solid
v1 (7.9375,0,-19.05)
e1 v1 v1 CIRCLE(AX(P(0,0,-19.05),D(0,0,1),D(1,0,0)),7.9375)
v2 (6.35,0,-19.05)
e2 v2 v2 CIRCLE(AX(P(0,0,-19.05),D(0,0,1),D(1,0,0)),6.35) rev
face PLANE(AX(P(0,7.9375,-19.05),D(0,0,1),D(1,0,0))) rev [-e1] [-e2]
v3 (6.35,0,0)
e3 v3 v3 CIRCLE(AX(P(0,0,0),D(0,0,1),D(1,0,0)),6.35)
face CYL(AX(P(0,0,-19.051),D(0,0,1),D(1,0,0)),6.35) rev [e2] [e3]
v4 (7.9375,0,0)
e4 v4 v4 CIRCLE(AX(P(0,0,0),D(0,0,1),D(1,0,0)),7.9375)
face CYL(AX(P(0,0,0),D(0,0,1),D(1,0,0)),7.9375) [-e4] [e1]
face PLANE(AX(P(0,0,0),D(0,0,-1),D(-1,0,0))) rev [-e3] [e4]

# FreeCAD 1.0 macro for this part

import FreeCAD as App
import Part
import Sketcher

V = App.Vector
Q = App.Units.Quantity


def add_polygon(sketch, points):
    """Adds a closed chain of lines whose ends are joined by coincident constraints."""
    first, n = sketch.GeometryCount, len(points)
    for a, b in zip(points, points[1:] + points[:1]):
        sketch.addGeometry(Part.LineSegment(App.Vector(*a, 0), App.Vector(*b, 0)), False)
    for i in range(n):
        sketch.addConstraint(Sketcher.Constraint("Coincident", first + i, 2, first + (i + 1) % n, 1))

doc = App.newDocument("Part")
body = doc.addObject("PartDesign::Body", "Body")

# Sketch on YZ plane
sketch1 = doc.addObject("Sketcher::SketchObject", "Sketch")
body.addObject(sketch1)
sketch1.AttachmentSupport = (doc.YZ_Plane, [""])
sketch1.MapMode = "FlatFace"
add_polygon(sketch1, [(8, 0), (0, 0), (0, -19), (8, -19)])  # lines 0-3
sketch1.addConstraint(Sketcher.Constraint("Horizontal", 0))
sketch1.addConstraint(Sketcher.Constraint("Vertical", 1))
sketch1.addConstraint(Sketcher.Constraint("Horizontal", 2))
sketch1.addConstraint(Sketcher.Constraint("Vertical", 3))
sketch1.addConstraint(Sketcher.Constraint("Coincident", 0, 2, -1, 1))
sketch1.addConstraint(Sketcher.Constraint("DistanceY", 1, 2, 1, 1, Q("0.75 in")))
sketch1.addConstraint(Sketcher.Constraint("DistanceX", 0, 2, 0, 1, Q("0.3125 in")))
revolution = doc.addObject("PartDesign::Revolution", "Revolution")
body.addObject(revolution)
revolution.Profile = sketch1
revolution.ReferenceAxis = (sketch1, ["V_Axis"])
revolution.Angle = 360

# Sketch on XY plane
sketch2 = doc.addObject("Sketcher::SketchObject", "Sketch001")
body.addObject(sketch2)
sketch2.AttachmentSupport = (doc.XY_Plane, [""])
sketch2.MapMode = "FlatFace"
sketch2.addGeometry(Part.Circle(V(0, 0, 0), V(0, 0, 1), 6), False)
sketch2.addConstraint(Sketcher.Constraint("Coincident", 0, 3, -1, 1))
sketch2.addConstraint(Sketcher.Constraint("Diameter", 0, Q("0.5 in")))
pocket1 = doc.addObject("PartDesign::Pocket", "Pocket")
body.addObject(pocket1)
pocket1.Profile = sketch2
pocket1.Type = "UpToFirst"

doc.recompute()
